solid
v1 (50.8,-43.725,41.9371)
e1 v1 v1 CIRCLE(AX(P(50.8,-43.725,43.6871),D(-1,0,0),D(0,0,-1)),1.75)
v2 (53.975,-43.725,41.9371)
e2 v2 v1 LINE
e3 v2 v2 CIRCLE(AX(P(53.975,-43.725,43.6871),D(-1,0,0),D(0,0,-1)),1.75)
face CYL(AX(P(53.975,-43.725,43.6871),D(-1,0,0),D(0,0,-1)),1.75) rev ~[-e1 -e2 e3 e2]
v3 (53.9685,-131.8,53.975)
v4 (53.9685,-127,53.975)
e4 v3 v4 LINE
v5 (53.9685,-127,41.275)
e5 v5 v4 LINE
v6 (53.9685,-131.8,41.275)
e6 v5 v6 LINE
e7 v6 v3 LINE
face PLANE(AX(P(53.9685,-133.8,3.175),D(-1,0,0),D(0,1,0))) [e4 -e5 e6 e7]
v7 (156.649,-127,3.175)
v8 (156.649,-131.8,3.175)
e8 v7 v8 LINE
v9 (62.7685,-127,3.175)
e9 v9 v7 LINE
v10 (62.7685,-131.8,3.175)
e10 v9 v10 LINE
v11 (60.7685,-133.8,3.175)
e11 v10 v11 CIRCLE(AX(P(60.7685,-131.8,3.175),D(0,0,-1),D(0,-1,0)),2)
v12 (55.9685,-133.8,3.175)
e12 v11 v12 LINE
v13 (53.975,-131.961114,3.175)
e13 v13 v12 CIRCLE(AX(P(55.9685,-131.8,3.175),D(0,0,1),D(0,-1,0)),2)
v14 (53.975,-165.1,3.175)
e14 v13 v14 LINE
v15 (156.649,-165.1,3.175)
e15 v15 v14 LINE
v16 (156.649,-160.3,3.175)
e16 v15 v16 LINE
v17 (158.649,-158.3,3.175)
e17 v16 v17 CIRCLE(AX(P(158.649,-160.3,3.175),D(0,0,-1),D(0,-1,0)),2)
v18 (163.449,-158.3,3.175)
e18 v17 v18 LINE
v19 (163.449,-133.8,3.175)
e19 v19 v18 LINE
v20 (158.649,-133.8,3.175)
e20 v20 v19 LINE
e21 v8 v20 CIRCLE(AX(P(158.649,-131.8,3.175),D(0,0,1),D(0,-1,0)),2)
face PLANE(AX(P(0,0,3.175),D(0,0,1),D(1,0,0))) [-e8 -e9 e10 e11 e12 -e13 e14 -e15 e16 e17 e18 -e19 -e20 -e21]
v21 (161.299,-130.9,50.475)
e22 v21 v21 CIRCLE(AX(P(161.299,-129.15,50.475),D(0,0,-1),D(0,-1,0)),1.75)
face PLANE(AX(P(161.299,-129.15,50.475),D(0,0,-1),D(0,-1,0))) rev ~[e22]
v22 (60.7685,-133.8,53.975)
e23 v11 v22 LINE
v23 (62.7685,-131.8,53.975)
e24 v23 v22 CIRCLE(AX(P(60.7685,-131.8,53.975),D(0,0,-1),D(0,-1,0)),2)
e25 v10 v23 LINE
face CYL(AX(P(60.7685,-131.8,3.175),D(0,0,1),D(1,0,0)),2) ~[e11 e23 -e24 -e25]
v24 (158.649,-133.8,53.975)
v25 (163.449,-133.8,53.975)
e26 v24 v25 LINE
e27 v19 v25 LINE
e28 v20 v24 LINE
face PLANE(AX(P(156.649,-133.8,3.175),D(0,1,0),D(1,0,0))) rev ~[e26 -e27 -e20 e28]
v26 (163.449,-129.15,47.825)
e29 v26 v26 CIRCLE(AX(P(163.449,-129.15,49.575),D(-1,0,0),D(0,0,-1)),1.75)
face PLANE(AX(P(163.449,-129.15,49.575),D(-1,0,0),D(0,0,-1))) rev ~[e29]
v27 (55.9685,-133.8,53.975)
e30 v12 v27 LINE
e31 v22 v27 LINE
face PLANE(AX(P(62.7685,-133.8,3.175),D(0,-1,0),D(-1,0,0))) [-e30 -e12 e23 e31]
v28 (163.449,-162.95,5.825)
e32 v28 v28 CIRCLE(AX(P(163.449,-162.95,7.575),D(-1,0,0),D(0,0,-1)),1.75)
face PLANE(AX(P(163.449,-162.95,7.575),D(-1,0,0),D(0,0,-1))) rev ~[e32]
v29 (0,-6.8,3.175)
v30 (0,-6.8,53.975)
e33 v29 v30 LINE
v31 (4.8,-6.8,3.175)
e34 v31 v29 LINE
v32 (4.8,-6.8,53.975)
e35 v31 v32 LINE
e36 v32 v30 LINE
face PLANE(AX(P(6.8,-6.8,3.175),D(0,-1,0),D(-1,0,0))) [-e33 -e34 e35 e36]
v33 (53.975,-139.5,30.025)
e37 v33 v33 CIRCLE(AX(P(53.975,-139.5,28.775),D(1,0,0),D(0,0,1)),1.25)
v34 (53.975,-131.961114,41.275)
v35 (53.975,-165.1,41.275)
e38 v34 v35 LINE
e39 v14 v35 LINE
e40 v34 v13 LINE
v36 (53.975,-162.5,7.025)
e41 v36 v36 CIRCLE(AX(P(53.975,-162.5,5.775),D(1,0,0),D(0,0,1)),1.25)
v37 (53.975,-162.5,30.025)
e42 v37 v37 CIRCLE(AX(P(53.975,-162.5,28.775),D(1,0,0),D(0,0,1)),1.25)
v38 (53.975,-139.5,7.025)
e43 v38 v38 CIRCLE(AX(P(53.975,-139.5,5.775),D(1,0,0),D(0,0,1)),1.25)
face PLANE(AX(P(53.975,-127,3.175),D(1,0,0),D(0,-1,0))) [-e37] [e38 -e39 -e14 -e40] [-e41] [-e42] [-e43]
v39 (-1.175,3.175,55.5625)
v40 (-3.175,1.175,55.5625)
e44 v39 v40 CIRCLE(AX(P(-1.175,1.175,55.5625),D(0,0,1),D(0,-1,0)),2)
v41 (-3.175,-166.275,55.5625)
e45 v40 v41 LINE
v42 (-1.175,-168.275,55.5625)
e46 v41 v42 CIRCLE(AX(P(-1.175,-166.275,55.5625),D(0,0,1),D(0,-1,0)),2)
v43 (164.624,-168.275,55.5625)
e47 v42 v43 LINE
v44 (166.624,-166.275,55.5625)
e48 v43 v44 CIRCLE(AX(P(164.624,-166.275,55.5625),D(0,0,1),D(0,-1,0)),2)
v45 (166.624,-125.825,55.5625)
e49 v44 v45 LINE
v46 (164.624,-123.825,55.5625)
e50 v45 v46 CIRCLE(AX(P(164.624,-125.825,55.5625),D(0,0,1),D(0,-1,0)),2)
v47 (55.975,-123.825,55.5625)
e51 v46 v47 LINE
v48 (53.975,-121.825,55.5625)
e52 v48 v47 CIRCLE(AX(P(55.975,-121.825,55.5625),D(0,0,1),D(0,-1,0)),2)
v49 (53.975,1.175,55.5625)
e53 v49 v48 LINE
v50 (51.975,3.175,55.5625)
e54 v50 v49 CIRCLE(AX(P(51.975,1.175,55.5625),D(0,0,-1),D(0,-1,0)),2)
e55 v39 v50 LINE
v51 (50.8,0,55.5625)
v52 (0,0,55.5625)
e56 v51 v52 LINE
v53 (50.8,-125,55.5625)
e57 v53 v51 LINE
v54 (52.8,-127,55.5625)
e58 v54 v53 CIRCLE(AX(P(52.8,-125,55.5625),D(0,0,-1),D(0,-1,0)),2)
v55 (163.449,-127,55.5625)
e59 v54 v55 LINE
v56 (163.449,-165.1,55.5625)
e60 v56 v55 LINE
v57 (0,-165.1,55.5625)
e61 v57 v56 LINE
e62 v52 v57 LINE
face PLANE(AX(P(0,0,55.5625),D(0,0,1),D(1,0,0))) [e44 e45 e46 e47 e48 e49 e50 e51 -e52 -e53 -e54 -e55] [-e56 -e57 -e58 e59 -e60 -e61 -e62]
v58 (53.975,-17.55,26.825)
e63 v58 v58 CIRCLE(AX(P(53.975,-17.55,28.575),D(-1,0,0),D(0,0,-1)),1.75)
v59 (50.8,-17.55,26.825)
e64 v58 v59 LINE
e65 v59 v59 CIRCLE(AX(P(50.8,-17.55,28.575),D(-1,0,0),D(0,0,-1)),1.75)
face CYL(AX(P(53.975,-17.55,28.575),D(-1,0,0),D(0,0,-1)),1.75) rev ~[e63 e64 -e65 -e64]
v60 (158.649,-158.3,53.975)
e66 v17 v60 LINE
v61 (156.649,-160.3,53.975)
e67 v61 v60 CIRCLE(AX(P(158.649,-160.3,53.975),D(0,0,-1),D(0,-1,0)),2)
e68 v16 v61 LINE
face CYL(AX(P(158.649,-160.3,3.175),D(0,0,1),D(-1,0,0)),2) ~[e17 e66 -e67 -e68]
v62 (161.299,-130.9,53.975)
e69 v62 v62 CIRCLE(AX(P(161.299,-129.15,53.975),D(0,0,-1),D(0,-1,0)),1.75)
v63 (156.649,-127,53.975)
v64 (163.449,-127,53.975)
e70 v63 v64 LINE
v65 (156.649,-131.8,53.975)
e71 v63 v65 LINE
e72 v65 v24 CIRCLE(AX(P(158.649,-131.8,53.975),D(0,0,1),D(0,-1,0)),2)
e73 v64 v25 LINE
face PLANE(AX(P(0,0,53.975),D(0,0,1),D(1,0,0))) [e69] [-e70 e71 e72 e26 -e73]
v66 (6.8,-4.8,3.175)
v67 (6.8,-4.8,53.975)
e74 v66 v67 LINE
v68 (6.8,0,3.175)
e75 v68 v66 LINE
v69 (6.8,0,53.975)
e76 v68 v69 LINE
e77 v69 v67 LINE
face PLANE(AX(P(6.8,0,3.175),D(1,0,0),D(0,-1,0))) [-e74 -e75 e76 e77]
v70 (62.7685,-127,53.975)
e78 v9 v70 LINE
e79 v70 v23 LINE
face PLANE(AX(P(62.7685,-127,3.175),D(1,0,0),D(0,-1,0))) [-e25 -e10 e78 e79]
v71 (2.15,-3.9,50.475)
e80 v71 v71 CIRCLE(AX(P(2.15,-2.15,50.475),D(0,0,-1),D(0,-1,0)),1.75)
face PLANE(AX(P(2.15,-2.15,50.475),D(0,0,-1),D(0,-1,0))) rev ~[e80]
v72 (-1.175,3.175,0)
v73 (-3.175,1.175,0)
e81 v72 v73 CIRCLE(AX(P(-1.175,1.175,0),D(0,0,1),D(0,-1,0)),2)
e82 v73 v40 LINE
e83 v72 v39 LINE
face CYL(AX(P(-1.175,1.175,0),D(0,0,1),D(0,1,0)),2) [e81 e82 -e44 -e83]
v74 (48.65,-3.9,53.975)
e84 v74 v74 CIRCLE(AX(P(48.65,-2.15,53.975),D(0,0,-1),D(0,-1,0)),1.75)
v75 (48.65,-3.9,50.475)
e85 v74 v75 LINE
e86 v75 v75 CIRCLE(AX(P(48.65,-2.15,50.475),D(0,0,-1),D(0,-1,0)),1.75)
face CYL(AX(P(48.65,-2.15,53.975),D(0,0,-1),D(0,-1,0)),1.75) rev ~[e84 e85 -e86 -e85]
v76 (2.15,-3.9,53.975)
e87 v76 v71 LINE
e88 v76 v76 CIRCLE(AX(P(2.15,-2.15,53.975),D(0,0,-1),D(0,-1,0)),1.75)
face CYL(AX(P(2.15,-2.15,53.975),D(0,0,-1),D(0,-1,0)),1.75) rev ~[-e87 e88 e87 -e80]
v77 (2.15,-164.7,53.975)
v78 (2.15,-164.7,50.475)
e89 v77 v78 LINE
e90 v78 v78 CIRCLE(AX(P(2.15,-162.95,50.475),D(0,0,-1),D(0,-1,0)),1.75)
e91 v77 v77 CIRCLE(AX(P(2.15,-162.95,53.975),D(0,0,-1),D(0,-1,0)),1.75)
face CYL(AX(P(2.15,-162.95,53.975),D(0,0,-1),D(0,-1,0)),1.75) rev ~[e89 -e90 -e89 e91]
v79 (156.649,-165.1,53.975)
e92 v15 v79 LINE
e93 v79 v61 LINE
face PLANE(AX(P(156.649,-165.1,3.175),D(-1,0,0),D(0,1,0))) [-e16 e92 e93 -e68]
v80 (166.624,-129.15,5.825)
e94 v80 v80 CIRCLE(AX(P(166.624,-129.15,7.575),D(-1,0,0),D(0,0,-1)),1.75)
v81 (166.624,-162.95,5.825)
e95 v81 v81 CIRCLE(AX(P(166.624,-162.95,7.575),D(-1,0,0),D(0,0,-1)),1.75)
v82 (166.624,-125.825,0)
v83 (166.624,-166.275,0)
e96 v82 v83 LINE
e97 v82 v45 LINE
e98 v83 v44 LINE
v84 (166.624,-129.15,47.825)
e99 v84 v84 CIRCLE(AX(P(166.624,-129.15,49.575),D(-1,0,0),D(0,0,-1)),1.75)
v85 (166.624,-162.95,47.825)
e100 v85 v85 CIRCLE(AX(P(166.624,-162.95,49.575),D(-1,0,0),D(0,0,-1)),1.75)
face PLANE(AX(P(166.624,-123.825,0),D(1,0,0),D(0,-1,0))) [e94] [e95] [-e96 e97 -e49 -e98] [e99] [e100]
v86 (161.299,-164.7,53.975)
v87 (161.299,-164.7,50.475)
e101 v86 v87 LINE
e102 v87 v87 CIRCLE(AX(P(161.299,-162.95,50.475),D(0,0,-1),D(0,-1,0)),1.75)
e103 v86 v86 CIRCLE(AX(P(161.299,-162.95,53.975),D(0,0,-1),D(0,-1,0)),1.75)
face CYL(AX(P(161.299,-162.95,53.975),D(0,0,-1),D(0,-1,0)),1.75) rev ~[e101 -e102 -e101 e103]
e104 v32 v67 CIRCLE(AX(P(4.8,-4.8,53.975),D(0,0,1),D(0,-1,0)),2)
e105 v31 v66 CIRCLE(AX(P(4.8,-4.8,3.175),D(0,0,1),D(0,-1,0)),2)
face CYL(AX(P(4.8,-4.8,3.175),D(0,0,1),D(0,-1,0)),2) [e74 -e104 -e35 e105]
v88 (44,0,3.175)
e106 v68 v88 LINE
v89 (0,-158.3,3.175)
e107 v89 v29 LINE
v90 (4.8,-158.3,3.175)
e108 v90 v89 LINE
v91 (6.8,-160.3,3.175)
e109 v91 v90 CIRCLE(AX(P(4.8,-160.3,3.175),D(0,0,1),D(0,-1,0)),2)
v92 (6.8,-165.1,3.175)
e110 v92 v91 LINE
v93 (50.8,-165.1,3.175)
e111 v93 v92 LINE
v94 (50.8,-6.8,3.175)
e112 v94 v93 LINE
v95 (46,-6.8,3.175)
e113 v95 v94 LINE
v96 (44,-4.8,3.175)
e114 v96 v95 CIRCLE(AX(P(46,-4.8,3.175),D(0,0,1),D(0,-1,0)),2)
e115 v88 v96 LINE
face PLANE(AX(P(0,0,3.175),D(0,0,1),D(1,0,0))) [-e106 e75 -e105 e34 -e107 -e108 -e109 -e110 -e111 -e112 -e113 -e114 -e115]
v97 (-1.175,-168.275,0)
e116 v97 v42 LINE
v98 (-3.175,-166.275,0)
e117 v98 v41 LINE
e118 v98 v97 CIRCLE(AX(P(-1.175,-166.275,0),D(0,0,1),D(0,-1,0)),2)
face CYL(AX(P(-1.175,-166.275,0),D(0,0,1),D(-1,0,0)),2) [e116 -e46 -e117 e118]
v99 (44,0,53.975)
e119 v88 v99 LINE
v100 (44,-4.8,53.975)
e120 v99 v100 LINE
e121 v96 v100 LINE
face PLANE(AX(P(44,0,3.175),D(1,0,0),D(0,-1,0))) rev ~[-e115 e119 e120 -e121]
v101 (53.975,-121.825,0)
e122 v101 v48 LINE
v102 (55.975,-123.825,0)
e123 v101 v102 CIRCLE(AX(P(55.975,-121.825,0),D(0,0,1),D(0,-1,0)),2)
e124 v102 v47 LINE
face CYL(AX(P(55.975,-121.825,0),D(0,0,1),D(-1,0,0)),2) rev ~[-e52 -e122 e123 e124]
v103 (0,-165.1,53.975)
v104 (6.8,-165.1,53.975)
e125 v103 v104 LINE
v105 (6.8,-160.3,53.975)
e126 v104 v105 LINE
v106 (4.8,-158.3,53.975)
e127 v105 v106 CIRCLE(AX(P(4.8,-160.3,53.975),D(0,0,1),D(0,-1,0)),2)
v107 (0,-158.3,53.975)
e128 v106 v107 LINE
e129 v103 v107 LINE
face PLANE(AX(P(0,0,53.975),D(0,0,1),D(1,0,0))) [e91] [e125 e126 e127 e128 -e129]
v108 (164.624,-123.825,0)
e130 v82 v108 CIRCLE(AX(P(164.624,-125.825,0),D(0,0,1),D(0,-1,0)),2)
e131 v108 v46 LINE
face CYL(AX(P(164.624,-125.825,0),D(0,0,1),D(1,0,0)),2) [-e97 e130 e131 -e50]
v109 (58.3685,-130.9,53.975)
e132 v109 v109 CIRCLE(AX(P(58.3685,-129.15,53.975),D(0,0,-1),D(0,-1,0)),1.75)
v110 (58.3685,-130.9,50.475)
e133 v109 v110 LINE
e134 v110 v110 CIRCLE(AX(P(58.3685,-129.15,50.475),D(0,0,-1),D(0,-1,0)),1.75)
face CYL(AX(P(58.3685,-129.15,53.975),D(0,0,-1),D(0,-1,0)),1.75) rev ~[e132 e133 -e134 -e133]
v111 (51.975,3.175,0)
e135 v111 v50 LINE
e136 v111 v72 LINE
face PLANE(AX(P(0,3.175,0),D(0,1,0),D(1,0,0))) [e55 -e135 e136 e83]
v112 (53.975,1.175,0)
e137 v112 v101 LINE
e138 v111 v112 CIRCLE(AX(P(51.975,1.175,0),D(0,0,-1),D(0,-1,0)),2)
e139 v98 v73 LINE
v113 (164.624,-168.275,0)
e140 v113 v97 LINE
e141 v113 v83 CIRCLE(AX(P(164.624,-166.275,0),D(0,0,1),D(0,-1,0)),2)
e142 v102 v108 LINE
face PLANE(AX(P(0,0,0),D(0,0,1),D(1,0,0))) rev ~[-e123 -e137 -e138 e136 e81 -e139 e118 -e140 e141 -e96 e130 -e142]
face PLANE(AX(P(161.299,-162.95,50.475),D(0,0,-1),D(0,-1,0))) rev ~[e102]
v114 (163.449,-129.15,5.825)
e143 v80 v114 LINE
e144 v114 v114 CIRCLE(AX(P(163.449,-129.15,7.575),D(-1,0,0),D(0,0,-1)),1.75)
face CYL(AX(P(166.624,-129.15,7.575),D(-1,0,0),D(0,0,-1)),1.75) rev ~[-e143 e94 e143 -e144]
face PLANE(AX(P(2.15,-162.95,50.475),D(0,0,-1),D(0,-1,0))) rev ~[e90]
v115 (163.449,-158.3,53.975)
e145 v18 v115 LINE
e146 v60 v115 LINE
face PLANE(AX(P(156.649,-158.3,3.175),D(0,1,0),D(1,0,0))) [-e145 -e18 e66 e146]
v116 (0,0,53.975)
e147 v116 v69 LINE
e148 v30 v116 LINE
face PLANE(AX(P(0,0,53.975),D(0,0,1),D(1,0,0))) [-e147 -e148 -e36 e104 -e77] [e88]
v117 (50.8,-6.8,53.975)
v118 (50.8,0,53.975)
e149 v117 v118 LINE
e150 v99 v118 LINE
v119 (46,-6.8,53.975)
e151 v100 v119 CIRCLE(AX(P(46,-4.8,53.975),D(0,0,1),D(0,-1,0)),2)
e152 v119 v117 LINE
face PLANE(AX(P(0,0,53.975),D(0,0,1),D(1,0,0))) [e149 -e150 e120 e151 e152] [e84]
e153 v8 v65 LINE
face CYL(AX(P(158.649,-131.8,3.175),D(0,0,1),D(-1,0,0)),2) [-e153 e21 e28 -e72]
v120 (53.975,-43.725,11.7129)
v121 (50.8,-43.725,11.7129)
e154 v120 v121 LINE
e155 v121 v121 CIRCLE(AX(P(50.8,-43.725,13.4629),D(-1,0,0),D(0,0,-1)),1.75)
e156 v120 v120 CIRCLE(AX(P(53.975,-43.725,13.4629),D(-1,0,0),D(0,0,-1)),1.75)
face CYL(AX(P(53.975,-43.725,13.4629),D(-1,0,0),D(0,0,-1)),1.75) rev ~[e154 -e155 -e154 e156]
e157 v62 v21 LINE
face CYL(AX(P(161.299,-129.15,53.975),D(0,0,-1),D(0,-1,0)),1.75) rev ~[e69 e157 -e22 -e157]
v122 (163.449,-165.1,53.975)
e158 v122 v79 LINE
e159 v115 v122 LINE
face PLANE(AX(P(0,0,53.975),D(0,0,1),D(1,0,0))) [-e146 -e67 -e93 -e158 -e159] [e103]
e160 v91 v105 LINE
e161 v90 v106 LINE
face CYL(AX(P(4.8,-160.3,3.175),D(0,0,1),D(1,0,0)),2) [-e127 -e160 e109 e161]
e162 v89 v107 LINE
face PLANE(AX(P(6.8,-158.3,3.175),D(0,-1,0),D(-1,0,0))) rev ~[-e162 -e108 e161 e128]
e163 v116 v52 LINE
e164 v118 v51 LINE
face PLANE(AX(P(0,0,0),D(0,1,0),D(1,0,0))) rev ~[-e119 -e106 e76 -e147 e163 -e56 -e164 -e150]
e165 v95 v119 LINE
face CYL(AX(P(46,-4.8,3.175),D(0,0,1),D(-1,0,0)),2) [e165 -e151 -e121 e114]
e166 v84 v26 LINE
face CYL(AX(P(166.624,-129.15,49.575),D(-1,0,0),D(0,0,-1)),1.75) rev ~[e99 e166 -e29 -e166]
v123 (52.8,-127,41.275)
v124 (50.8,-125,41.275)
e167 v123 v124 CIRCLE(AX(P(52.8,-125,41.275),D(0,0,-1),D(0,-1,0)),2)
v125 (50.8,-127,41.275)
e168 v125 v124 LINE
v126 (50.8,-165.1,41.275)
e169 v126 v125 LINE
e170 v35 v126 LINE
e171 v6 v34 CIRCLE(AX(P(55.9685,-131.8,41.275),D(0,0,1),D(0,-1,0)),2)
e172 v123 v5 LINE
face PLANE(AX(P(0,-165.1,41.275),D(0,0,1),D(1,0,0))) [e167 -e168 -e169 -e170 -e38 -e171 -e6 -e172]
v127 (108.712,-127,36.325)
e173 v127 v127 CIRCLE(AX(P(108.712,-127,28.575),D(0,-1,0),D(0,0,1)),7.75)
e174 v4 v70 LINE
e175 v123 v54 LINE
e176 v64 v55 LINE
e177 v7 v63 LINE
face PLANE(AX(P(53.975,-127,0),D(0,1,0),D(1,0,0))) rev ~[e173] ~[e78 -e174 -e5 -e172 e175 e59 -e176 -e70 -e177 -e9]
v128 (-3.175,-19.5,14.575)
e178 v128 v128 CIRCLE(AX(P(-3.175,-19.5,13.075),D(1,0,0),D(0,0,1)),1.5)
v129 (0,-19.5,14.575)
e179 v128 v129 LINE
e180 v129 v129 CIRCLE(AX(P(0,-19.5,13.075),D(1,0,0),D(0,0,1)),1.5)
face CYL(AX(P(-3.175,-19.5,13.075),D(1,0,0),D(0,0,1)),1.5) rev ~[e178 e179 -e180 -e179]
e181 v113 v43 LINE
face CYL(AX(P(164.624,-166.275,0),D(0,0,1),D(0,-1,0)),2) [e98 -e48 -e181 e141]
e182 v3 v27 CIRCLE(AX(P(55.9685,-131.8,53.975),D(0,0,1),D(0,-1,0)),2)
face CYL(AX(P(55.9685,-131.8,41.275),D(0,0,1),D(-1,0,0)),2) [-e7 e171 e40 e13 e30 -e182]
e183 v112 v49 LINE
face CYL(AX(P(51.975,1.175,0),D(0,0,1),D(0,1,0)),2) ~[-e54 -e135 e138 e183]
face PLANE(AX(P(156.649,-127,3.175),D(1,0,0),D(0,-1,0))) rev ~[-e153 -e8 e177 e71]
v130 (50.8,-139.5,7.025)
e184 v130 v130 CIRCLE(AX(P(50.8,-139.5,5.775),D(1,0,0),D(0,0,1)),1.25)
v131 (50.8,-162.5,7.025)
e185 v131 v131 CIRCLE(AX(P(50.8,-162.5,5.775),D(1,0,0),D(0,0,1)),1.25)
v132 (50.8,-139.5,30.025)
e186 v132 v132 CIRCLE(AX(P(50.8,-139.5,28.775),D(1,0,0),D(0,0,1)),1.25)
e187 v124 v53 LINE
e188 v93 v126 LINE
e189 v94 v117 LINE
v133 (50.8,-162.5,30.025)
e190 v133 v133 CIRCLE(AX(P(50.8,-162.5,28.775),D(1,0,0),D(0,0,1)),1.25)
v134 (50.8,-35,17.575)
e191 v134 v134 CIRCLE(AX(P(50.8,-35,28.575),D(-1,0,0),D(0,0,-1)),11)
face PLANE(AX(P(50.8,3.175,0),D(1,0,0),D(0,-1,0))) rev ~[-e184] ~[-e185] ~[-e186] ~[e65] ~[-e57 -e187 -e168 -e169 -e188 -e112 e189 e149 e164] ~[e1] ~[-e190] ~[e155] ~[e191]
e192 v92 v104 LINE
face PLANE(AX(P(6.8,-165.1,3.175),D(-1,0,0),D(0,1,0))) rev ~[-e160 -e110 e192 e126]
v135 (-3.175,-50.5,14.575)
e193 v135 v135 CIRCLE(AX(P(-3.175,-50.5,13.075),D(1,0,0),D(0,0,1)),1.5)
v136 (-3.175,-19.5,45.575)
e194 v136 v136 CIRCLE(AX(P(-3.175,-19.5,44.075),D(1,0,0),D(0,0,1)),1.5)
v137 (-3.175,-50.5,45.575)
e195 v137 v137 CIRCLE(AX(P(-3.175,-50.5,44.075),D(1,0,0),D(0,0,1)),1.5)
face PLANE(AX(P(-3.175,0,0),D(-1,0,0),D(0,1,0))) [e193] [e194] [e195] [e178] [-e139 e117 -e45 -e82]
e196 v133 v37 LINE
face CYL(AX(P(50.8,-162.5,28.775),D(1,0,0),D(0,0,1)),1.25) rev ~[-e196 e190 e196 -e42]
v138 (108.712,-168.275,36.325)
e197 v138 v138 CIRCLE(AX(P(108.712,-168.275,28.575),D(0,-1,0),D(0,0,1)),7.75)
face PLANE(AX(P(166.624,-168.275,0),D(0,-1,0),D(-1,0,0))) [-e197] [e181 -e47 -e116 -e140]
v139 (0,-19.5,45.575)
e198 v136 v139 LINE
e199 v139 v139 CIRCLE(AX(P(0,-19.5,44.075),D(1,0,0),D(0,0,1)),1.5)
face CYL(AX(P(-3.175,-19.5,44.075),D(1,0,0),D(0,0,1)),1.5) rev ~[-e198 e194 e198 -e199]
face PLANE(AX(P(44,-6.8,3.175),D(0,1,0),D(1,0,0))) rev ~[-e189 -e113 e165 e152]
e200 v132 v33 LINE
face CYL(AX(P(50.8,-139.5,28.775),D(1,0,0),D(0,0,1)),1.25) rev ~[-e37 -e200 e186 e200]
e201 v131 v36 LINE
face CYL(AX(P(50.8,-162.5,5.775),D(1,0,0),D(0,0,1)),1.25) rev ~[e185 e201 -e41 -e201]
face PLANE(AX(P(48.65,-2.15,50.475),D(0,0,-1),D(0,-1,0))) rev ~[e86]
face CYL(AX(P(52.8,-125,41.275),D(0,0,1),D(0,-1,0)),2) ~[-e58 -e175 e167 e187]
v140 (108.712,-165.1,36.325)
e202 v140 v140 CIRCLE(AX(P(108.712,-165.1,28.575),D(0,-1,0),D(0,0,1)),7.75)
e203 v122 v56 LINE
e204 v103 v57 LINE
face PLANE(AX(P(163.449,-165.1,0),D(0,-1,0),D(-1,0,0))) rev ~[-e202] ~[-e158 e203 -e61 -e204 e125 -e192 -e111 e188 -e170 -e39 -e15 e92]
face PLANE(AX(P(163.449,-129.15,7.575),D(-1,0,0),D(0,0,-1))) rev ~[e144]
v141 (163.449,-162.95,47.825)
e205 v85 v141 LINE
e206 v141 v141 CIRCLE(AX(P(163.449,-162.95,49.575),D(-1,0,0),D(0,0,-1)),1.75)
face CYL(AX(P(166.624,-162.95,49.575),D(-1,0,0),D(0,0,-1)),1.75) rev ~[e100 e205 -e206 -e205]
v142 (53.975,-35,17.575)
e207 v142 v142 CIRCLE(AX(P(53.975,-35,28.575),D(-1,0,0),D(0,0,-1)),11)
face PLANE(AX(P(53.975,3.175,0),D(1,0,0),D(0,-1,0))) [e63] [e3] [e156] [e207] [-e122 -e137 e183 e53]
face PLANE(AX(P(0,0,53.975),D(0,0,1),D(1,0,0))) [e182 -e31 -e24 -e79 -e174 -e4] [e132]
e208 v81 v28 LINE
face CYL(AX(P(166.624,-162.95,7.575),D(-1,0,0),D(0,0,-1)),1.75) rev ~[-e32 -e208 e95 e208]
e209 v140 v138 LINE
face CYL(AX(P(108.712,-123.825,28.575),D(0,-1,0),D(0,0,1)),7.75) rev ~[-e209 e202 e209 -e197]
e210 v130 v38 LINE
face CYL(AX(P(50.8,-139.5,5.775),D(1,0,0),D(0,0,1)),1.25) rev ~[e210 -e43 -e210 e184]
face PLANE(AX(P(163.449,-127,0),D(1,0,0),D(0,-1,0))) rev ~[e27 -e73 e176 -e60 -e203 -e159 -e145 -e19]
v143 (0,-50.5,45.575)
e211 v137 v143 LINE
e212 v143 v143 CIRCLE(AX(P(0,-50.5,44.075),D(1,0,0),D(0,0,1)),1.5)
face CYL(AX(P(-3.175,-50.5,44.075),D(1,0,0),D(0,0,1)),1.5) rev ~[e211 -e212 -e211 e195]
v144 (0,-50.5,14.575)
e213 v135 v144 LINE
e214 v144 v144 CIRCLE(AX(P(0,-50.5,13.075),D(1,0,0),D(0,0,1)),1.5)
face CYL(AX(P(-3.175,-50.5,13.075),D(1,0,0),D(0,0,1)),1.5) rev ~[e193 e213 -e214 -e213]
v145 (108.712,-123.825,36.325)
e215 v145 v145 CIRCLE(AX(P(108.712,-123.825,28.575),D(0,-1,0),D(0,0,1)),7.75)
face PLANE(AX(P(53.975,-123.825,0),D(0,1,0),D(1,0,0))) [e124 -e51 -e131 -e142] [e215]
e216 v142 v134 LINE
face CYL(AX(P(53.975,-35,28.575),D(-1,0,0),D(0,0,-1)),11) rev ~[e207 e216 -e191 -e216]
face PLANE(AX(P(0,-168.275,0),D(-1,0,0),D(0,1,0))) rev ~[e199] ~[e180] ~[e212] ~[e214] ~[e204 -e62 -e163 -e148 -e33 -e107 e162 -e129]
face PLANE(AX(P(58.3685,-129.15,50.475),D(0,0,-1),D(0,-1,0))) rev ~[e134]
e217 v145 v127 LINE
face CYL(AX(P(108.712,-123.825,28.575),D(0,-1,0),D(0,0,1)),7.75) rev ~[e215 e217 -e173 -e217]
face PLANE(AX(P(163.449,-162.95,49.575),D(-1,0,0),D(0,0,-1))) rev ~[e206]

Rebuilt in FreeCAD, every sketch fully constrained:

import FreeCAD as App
import Part
import Sketcher

V = App.Vector
Q = App.Units.Quantity


def edges_at(feature, points):
    """Names of the edges that pass closest to the given points."""
    edges = feature.Shape.Edges
    near = lambda p: min(range(len(edges)), key=lambda i: edges[i].distToShape(Part.Vertex(*p))[0])
    return sorted({f"Edge{near(p) + 1}" for p in points})


def faces_at(feature, points):
    """Names of the faces that lie closest to the given points."""
    faces = feature.Shape.Faces
    near = lambda p: min(range(len(faces)), key=lambda i: faces[i].distToShape(Part.Vertex(*p))[0])
    return sorted({f"Face{near(p) + 1}" for p in points})


def add_polygon(sketch, points):
    """Adds a closed chain of lines whose ends are joined by coincident constraints."""
    first, n = sketch.GeometryCount, len(points)
    for a, b in zip(points, points[1:] + points[:1]):
        sketch.addGeometry(Part.LineSegment(App.Vector(*a, 0), App.Vector(*b, 0)), False)
    for i in range(n):
        sketch.addConstraint(Sketcher.Constraint("Coincident", first + i, 2, first + (i + 1) % n, 1))

doc = App.newDocument("Part")
params = doc.addObject("Spreadsheet::Sheet", "Params")
for row, (alias, value) in enumerate([
    ("sketch1_height", "5 in"),
    ("sketch1_width", "2.25 in"),
    ("sketch1_height2", "6.75 in"),
    ("sketch1_width2", "6.685 in"),
    ("pad1_length", "2.1875 in"),
    ("thickness_wall", "0.125 in"),
    ("sketch2_width", "0.125 in"),
    ("sketch2_height", "1.5 in"),
    ("pad2_length", "1.5 in"),
    ("pad3_length", "2 in"),
    ("hole_diameter", "0.1377953 in"),
    ("hole_depth", "0.1377953 in"),
    ("fillet_radius", "2 mm"),
    ("fillet2_radius", "2 mm"),
    ("hole2_diameter", "22 mm"),
    ("hole2_depth", "0.125 in"),
    ("hole3_diameter", "15.5 mm"),
    ("hole4_diameter", "0.1377953 in"),
    ("hole4_depth", "0.125 in"),
    ("hole5_diameter", "0.1181102 in"),
    ("hole5_depth", "0.125 in"),
    ("hole6_diameter", "2.5 mm"),
    ("hole6_depth", "0.125 in"),
    ("hole7_diameter", "0.1377953 in"),
    ("hole7_depth", "0.125 in"),
    ("fillet3_radius", "2 mm"),
], start=1):
    params.set(f"A{row}", alias)
    params.set(f"B{row}", "=" + value)
    params.setAlias(f"B{row}", alias)

body = doc.addObject("PartDesign::Body", "Body")

sketch1 = body.newObject("Sketcher::SketchObject", "Sketch")
sketch1.AttachmentSupport = (doc.getObject("XY_Plane"), [""])
sketch1.MapMode = "FlatFace"
add_polygon(sketch1, [(54, 3), (-3, 3), (-3, -168), (167, -168), (167, -124), (54, -124)])
sketch1.addConstraint([
    Sketcher.Constraint("Horizontal", 0),
    Sketcher.Constraint("Vertical", 1),
    Sketcher.Constraint("Horizontal", 2),
    Sketcher.Constraint("Vertical", 3),
    Sketcher.Constraint("Horizontal", 4),
    Sketcher.Constraint("Vertical", 5),
    Sketcher.Constraint("DistanceY", 5, 1, 5, 2, Q("5 in")),
    Sketcher.Constraint("DistanceX", 0, 2, -1, 1, Q("0.125 in")),
    Sketcher.Constraint("DistanceY", -1, 1, 0, 2, Q("0.125 in")),
    Sketcher.Constraint("DistanceX", 0, 2, 0, 1, Q("2.25 in")),
    Sketcher.Constraint("DistanceY", 1, 2, 1, 1, Q("6.75 in")),
    Sketcher.Constraint("DistanceX", 2, 1, 2, 2, Q("6.685 in")),
])
sketch1.setExpression("Constraints[12]", "Params.sketch1_height")
sketch1.setExpression("Constraints[15]", "Params.sketch1_width")
sketch1.setExpression("Constraints[16]", "Params.sketch1_height2")
sketch1.setExpression("Constraints[17]", "Params.sketch1_width2")
pad1 = body.newObject("PartDesign::Pad", "Pad")
pad1.Profile = sketch1
pad1.setExpression("Length", "Params.pad1_length")
doc.recompute()

thickness = body.newObject("PartDesign::Thickness", "Thickness")
thickness.Base = (pad1, faces_at(pad1, [(15.875, -97.367, 55.562)]))
thickness.setExpression("Value", "Params.thickness_wall")
thickness.Reversed = True
thickness.Join = "Intersection"

sketch2 = body.newObject("Sketcher::SketchObject", "Sketch001")
sketch2.AttachmentSupport = (doc.getObject("XY_Plane"), [""])
sketch2.MapMode = "FlatFace"
sketch2.AttachmentOffset = App.Placement(V(0, 0, 0.125 * 25.4), App.Rotation())
add_polygon(sketch2, [(54, -127), (50.8, -127), (50.8, -165.1), (54, -165.1)])
sketch2.addConstraint([
    Sketcher.Constraint("Horizontal", 0),
    Sketcher.Constraint("Vertical", 1),
    Sketcher.Constraint("Horizontal", 2),
    Sketcher.Constraint("Vertical", 3),
    Sketcher.Constraint("DistanceX", 0, 2, 0, 1, Q("0.125 in")),
    Sketcher.Constraint("DistanceY", 1, 2, 1, 1, Q("1.5 in")),
    Sketcher.Constraint("DistanceX", -1, 1, 0, 2, Q("2 in")),
    Sketcher.Constraint("DistanceY", 0, 2, -1, 1, Q("5 in")),
])
sketch2.setExpression("Constraints[8]", "Params.sketch2_width")
sketch2.setExpression("Constraints[9]", "Params.sketch2_height")
pad2 = body.newObject("PartDesign::Pad", "Pad001")
pad2.Profile = sketch2
pad2.setExpression("Length", "Params.pad2_length")

sketch3 = body.newObject("Sketcher::SketchObject", "Sketch002")
sketch3.AttachmentSupport = (doc.getObject("XY_Plane"), [""])
sketch3.MapMode = "FlatFace"
sketch3.AttachmentOffset = App.Placement(V(0, 0, 0.125 * 25.4), App.Rotation())
add_polygon(sketch3, [(51, 0), (44, 0), (44, -7), (51, -7)])
add_polygon(sketch3, [(7, -158), (0, -158), (0, -165), (7, -165)])
add_polygon(sketch3, [(7, 0), (0, 0), (0, -7), (7, -7)])
add_polygon(sketch3, [(163, -165), (163, -158), (157, -158), (157, -165)])
add_polygon(sketch3, [(163, -127), (157, -127), (157, -134), (163, -134)])
add_polygon(sketch3, [(63, -127), (54, -127), (54, -134), (63, -134)])
sketch3.addConstraint([
    Sketcher.Constraint("Horizontal", 0),
    Sketcher.Constraint("Vertical", 1),
    Sketcher.Constraint("Horizontal", 2),
    Sketcher.Constraint("Vertical", 3),
    Sketcher.Constraint("Horizontal", 4),
    Sketcher.Constraint("Vertical", 5),
    Sketcher.Constraint("Horizontal", 6),
    Sketcher.Constraint("Vertical", 7),
    Sketcher.Constraint("Horizontal", 8),
    Sketcher.Constraint("Vertical", 9),
    Sketcher.Constraint("Horizontal", 10),
    Sketcher.Constraint("Vertical", 11),
    Sketcher.Constraint("Vertical", 12),
    Sketcher.Constraint("Horizontal", 13),
    Sketcher.Constraint("Vertical", 14),
    Sketcher.Constraint("Horizontal", 15),
    Sketcher.Constraint("Horizontal", 16),
    Sketcher.Constraint("Vertical", 17),
    Sketcher.Constraint("Horizontal", 18),
    Sketcher.Constraint("Vertical", 19),
    Sketcher.Constraint("Horizontal", 20),
    Sketcher.Constraint("Vertical", 21),
    Sketcher.Constraint("Horizontal", 22),
    Sketcher.Constraint("Vertical", 23),
    Sketcher.Constraint("Coincident", 8, 2, -1, 1),
    Sketcher.Constraint("PointOnObject", 0, 2, -1),
    Sketcher.Constraint("PointOnObject", 4, 2, -2),
    Sketcher.Constraint("Horizontal", 2, 2, 9, 2),
    Sketcher.Constraint("Horizontal", 7, 2, 12, 2),
    Sketcher.Constraint("Horizontal", 6, 2, 14, 2),
    Sketcher.Constraint("Horizontal", 19, 2, 20, 2),
    Sketcher.Constraint("Horizontal", 18, 2, 21, 2),
    Sketcher.Constraint("Vertical", 7, 2, 10, 2),
    Sketcher.Constraint("Vertical", 14, 2, 16, 2),
    Sketcher.Constraint("Vertical", 15, 2, 18, 2),
    Sketcher.Constraint("Equal", 2, 4),
    Sketcher.Constraint("Equal", 10, 13),
    Sketcher.Constraint("Equal", 18, 1),
    Sketcher.Constraint("Equal", 3, 5),
    Sketcher.Constraint("Equal", 14, 17),
    Sketcher.Constraint("DistanceX", -1, 1, 2, 2, Q("2 in")),
    Sketcher.Constraint("DistanceY", 16, 2, -1, 1, Q("5 in")),
    Sketcher.Constraint("DistanceY", 5, 2, -1, 1, Q("6.5 in")),
    Sketcher.Constraint("DistanceX", -1, 1, 12, 2, Q("6.435 in")),
    Sketcher.Constraint("DistanceX", 0, 2, 0, 1, Q("6.8 mm")),
    Sketcher.Constraint("DistanceX", 20, 2, 20, 1, Q("8.8 mm")),
    Sketcher.Constraint("DistanceX", -1, 1, 22, 2, Q("2.4712 in")),
])
pad3 = body.newObject("PartDesign::Pad", "Pad002")
pad3.Profile = sketch3
pad3.setExpression("Length", "Params.pad3_length")

sketch4 = body.newObject("Sketcher::SketchObject", "Sketch003")
sketch4.AttachmentSupport = (doc.getObject("XY_Plane"), [""])
sketch4.MapMode = "FlatFace"
sketch4.AttachmentOffset = App.Placement(V(0, 0, 2.125 * 25.4), App.Rotation())
sketch4.addGeometry([
    Part.Circle(V(2.1, -2.1, 0), V(0, 0, 1), 1.8),
    Part.Circle(V(48.6, -2.1, 0), V(0, 0, 1), 1.8),
    Part.Circle(V(2.1, -162.9, 0), V(0, 0, 1), 1.8),
    Part.Circle(V(58.4, -129.2, 0), V(0, 0, 1), 1.8),
    Part.Circle(V(161.3, -129.2, 0), V(0, 0, 1), 1.8),
    Part.Circle(V(161.3, -162.9, 0), V(0, 0, 1), 1.8),
], False)
sketch4.addConstraint([
    Sketcher.Constraint("Equal", 0, 1),
    Sketcher.Constraint("Equal", 1, 2),
    Sketcher.Constraint("Equal", 2, 3),
    Sketcher.Constraint("Equal", 3, 4),
    Sketcher.Constraint("Equal", 4, 5),
    Sketcher.Constraint("Horizontal", 0, 3, 1, 3),
    Sketcher.Constraint("Horizontal", 3, 3, 4, 3),
    Sketcher.Constraint("Horizontal", 2, 3, 5, 3),
    Sketcher.Constraint("Vertical", 0, 3, 2, 3),
    Sketcher.Constraint("Vertical", 4, 3, 5, 3),
    Sketcher.Constraint("DistanceY", 3, 3, 1, 3, Q("5 in")),
    Sketcher.Constraint("Diameter", 0, Q("0.1378 in")),
    Sketcher.Constraint("DistanceX", 1, 3, 4, 3, Q("4.435 in")),
    Sketcher.Constraint("DistanceX", 0, 3, 1, 3, Q("1.8307 in")),
    Sketcher.Constraint("DistanceY", 2, 3, 0, 3, Q("6.3307 in")),
    Sketcher.Constraint("DistanceX", -1, 1, 0, 3, Q("2.15 mm")),
    Sketcher.Constraint("DistanceY", 0, 3, -1, 1, Q("2.15 mm")),
    Sketcher.Constraint("DistanceX", -1, 1, 3, 3, Q("58.3685 mm")),
])
doc.recompute()
hole = body.newObject("PartDesign::Hole", "Hole")
hole.Profile = sketch4
hole.ThreadType = "None"
hole.setExpression("Diameter", "Params.hole_diameter")
hole.DepthType = "Dimension"
hole.setExpression("Depth", "Params.hole_depth")
hole.DrillPoint = "Flat"
doc.recompute()

fillet = body.newObject("PartDesign::Fillet", "Fillet")
fillet.Base = (hole, edges_at(hole, [
    (53.975, 3.175, 27.781),
    (166.624, -123.825, 27.781),
    (166.624, -168.275, 27.781),
    (-3.175, -168.275, 27.781),
    (-3.175, 3.175, 27.781),
]))
fillet.setExpression("Radius", "Params.fillet_radius")
doc.recompute()

fillet2 = body.newObject("PartDesign::Fillet", "Fillet001")
fillet2.Base = (fillet, edges_at(fillet, [
    (6.8, -158.3, 28.575),
    (6.8, -6.8, 28.575),
    (44, -6.8, 28.575),
    (62.769, -133.8, 28.575),
    (53.968, -133.8, 47.625),
    (156.649, -158.3, 28.575),
    (156.649, -133.8, 28.575),
]))
fillet2.setExpression("Radius", "Params.fillet2_radius")

sketch5 = body.newObject("Sketcher::SketchObject", "Sketch004")
sketch5.AttachmentSupport = (doc.getObject("YZ_Plane"), [""])
sketch5.MapMode = "FlatFace"
sketch5.AttachmentOffset = App.Placement(V(0, 0, 2.125 * 25.4), App.Rotation())
sketch5.addGeometry(Part.Circle(V(-35, 29, 0), V(0, 0, 1), 11), False)
sketch5.addConstraint([
    Sketcher.Constraint("Diameter", 0, Q("22 mm")),
    Sketcher.Constraint("DistanceY", -1, 1, 0, 3, Q("1.125 in")),
    Sketcher.Constraint("DistanceX", 0, 3, -1, 1, Q("35 mm")),
])
doc.recompute()
hole2 = body.newObject("PartDesign::Hole", "Hole001")
hole2.Profile = sketch5
hole2.ThreadType = "None"
hole2.setExpression("Diameter", "Params.hole2_diameter")
hole2.DepthType = "Dimension"
hole2.setExpression("Depth", "Params.hole2_depth")
hole2.DrillPoint = "Flat"

sketch6 = body.newObject("Sketcher::SketchObject", "Sketch005")
sketch6.AttachmentSupport = (doc.getObject("XZ_Plane"), [""])
sketch6.MapMode = "FlatFace"
sketch6.AttachmentOffset = App.Placement(V(0, 0, 4.875 * 25.4), App.Rotation())
sketch6.addGeometry(Part.Circle(V(109, 29, 0), V(0, 0, 1), 8), False)
sketch6.addConstraint([
    Sketcher.Constraint("Diameter", 0, Q("15.5 mm")),
    Sketcher.Constraint("DistanceX", -1, 1, 0, 3, Q("4.28 in")),
    Sketcher.Constraint("DistanceY", -1, 1, 0, 3, Q("1.125 in")),
])
doc.recompute()
hole3 = body.newObject("PartDesign::Hole", "Hole002")
hole3.Profile = sketch6
hole3.ThreadType = "None"
hole3.setExpression("Diameter", "Params.hole3_diameter")
hole3.DepthType = "ThroughAll"
hole3.Reversed = True

sketch7 = body.newObject("Sketcher::SketchObject", "Sketch006")
sketch7.AttachmentSupport = (doc.getObject("YZ_Plane"), [""])
sketch7.MapMode = "FlatFace"
sketch7.AttachmentOffset = App.Placement(V(0, 0, 2.125 * 25.4), App.Rotation())
sketch7.addGeometry([
    Part.Circle(V(-17.6, 28.6, 0), V(0, 0, 1), 1.8),
    Part.Circle(V(-43.7, 13.5, 0), V(0, 0, 1), 1.8),
    Part.Circle(V(-43.7, 43.7, 0), V(0, 0, 1), 1.8),
], False)
sketch7.addConstraint([
    Sketcher.Constraint("Equal", 0, 1),
    Sketcher.Constraint("Equal", 1, 2),
    Sketcher.Constraint("Vertical", 1, 3, 2, 3),
    Sketcher.Constraint("Diameter", 0, Q("0.1378 in")),
    Sketcher.Constraint("DistanceY", -1, 1, 0, 3, Q("1.125 in")),
    Sketcher.Constraint("DistanceX", 1, 3, 0, 3, Q("1.0305 in")),
    Sketcher.Constraint("DistanceX", 0, 3, -1, 1, Q("17.55 mm")),
    Sketcher.Constraint("DistanceY", -1, 1, 1, 3, Q("13.463 mm")),
    Sketcher.Constraint("DistanceY", -1, 1, 2, 3, Q("43.687 mm")),
])
doc.recompute()
hole4 = body.newObject("PartDesign::Hole", "Hole003")
hole4.Profile = sketch7
hole4.ThreadType = "None"
hole4.setExpression("Diameter", "Params.hole4_diameter")
hole4.DepthType = "Dimension"
hole4.setExpression("Depth", "Params.hole4_depth")
hole4.DrillPoint = "Flat"

sketch8 = body.newObject("Sketcher::SketchObject", "Sketch007")
sketch8.AttachmentSupport = (doc.getObject("YZ_Plane"), [""])
sketch8.MapMode = "FlatFace"
sketch8.AttachmentOffset = App.Placement(V(0, 0, -0.125 * 25.4), App.Rotation())
sketch8.addGeometry([
    Part.Circle(V(-50.5, 13.1, 0), V(0, 0, 1), 1.5),
    Part.Circle(V(-19.5, 13.1, 0), V(0, 0, 1), 1.5),
    Part.Circle(V(-19.5, 44.1, 0), V(0, 0, 1), 1.5),
    Part.Circle(V(-50.5, 44.1, 0), V(0, 0, 1), 1.5),
], False)
sketch8.addConstraint([
    Sketcher.Constraint("Equal", 0, 1),
    Sketcher.Constraint("Equal", 1, 2),
    Sketcher.Constraint("Equal", 2, 3),
    Sketcher.Constraint("Horizontal", 0, 3, 1, 3),
    Sketcher.Constraint("Horizontal", 2, 3, 3, 3),
    Sketcher.Constraint("Vertical", 1, 3, 2, 3),
    Sketcher.Constraint("Vertical", 0, 3, 3, 3),
    Sketcher.Constraint("Diameter", 0, Q("0.1181 in")),
    Sketcher.Constraint("DistanceX", 0, 3, -1, 1, Q("1.9882 in")),
    Sketcher.Constraint("DistanceY", -1, 1, 0, 3, Q("13.075 mm")),
    Sketcher.Constraint("DistanceX", 1, 3, -1, 1, Q("19.5 mm")),
    Sketcher.Constraint("DistanceY", -1, 1, 2, 3, Q("44.075 mm")),
])
doc.recompute()
hole5 = body.newObject("PartDesign::Hole", "Hole004")
hole5.Profile = sketch8
hole5.ThreadType = "None"
hole5.setExpression("Diameter", "Params.hole5_diameter")
hole5.DepthType = "Dimension"
hole5.setExpression("Depth", "Params.hole5_depth")
hole5.DrillPoint = "Flat"
hole5.Reversed = True

sketch9 = body.newObject("Sketcher::SketchObject", "Sketch008")
sketch9.AttachmentSupport = (doc.getObject("YZ_Plane"), [""])
sketch9.MapMode = "FlatFace"
sketch9.AttachmentOffset = App.Placement(V(0, 0, 2 * 25.4), App.Rotation())
sketch9.addGeometry([
    Part.Circle(V(-139.5, 5.8, 0), V(0, 0, 1), 1.2),
    Part.Circle(V(-139.5, 28.8, 0), V(0, 0, 1), 1.2),
    Part.Circle(V(-162.5, 28.8, 0), V(0, 0, 1), 1.2),
    Part.Circle(V(-162.5, 5.8, 0), V(0, 0, 1), 1.2),
], False)
sketch9.addConstraint([
    Sketcher.Constraint("Equal", 0, 1),
    Sketcher.Constraint("Equal", 1, 2),
    Sketcher.Constraint("Equal", 2, 3),
    Sketcher.Constraint("Horizontal", 1, 3, 2, 3),
    Sketcher.Constraint("Horizontal", 0, 3, 3, 3),
    Sketcher.Constraint("Vertical", 0, 3, 1, 3),
    Sketcher.Constraint("Vertical", 2, 3, 3, 3),
    Sketcher.Constraint("Diameter", 0, Q("2.5 mm")),
    Sketcher.Constraint("DistanceY", 0, 3, 1, 3, Q("0.9055 in")),
    Sketcher.Constraint("DistanceX", 2, 3, 1, 3, Q("0.9055 in")),
    Sketcher.Constraint("DistanceX", 0, 3, -1, 1, Q("139.5 mm")),
    Sketcher.Constraint("DistanceY", -1, 1, 0, 3, Q("5.775 mm")),
])
doc.recompute()
hole6 = body.newObject("PartDesign::Hole", "Hole005")
hole6.Profile = sketch9
hole6.ThreadType = "None"
hole6.setExpression("Diameter", "Params.hole6_diameter")
hole6.DepthType = "Dimension"
hole6.setExpression("Depth", "Params.hole6_depth")
hole6.DrillPoint = "Flat"
hole6.Reversed = True

sketch10 = body.newObject("Sketcher::SketchObject", "Sketch009")
sketch10.AttachmentSupport = (doc.getObject("YZ_Plane"), [""])
sketch10.MapMode = "FlatFace"
sketch10.AttachmentOffset = App.Placement(V(0, 0, 6.56 * 25.4), App.Rotation())
sketch10.addGeometry([
    Part.Circle(V(-129.2, 49.6, 0), V(0, 0, 1), 1.8),
    Part.Circle(V(-129.2, 7.6, 0), V(0, 0, 1), 1.8),
    Part.Circle(V(-162.9, 49.6, 0), V(0, 0, 1), 1.8),
    Part.Circle(V(-162.9, 7.6, 0), V(0, 0, 1), 1.8),
], False)
sketch10.addConstraint([
    Sketcher.Constraint("Equal", 0, 1),
    Sketcher.Constraint("Equal", 1, 2),
    Sketcher.Constraint("Equal", 2, 3),
    Sketcher.Constraint("Horizontal", 0, 3, 2, 3),
    Sketcher.Constraint("Horizontal", 1, 3, 3, 3),
    Sketcher.Constraint("Vertical", 0, 3, 1, 3),
    Sketcher.Constraint("Vertical", 2, 3, 3, 3),
    Sketcher.Constraint("Diameter", 0, Q("0.1378 in")),
    Sketcher.Constraint("DistanceX", 2, 3, 0, 3, Q("1.3307 in")),
    Sketcher.Constraint("DistanceX", 0, 3, -1, 1, Q("129.15 mm")),
    Sketcher.Constraint("DistanceY", -1, 1, 0, 3, Q("49.575 mm")),
    Sketcher.Constraint("DistanceY", -1, 1, 1, 3, Q("7.575 mm")),
])
doc.recompute()
hole7 = body.newObject("PartDesign::Hole", "Hole006")
hole7.Profile = sketch10
hole7.ThreadType = "None"
hole7.setExpression("Diameter", "Params.hole7_diameter")
hole7.DepthType = "Dimension"
hole7.setExpression("Depth", "Params.hole7_depth")
hole7.DrillPoint = "Flat"
doc.recompute()

fillet3 = body.newObject("PartDesign::Fillet", "Fillet002")
fillet3.Base = (hole7, edges_at(hole7, [(50.8, -127, 48.419), (53.975, -123.825, 27.781)]))
fillet3.setExpression("Radius", "Params.fillet3_radius")

doc.recompute()
